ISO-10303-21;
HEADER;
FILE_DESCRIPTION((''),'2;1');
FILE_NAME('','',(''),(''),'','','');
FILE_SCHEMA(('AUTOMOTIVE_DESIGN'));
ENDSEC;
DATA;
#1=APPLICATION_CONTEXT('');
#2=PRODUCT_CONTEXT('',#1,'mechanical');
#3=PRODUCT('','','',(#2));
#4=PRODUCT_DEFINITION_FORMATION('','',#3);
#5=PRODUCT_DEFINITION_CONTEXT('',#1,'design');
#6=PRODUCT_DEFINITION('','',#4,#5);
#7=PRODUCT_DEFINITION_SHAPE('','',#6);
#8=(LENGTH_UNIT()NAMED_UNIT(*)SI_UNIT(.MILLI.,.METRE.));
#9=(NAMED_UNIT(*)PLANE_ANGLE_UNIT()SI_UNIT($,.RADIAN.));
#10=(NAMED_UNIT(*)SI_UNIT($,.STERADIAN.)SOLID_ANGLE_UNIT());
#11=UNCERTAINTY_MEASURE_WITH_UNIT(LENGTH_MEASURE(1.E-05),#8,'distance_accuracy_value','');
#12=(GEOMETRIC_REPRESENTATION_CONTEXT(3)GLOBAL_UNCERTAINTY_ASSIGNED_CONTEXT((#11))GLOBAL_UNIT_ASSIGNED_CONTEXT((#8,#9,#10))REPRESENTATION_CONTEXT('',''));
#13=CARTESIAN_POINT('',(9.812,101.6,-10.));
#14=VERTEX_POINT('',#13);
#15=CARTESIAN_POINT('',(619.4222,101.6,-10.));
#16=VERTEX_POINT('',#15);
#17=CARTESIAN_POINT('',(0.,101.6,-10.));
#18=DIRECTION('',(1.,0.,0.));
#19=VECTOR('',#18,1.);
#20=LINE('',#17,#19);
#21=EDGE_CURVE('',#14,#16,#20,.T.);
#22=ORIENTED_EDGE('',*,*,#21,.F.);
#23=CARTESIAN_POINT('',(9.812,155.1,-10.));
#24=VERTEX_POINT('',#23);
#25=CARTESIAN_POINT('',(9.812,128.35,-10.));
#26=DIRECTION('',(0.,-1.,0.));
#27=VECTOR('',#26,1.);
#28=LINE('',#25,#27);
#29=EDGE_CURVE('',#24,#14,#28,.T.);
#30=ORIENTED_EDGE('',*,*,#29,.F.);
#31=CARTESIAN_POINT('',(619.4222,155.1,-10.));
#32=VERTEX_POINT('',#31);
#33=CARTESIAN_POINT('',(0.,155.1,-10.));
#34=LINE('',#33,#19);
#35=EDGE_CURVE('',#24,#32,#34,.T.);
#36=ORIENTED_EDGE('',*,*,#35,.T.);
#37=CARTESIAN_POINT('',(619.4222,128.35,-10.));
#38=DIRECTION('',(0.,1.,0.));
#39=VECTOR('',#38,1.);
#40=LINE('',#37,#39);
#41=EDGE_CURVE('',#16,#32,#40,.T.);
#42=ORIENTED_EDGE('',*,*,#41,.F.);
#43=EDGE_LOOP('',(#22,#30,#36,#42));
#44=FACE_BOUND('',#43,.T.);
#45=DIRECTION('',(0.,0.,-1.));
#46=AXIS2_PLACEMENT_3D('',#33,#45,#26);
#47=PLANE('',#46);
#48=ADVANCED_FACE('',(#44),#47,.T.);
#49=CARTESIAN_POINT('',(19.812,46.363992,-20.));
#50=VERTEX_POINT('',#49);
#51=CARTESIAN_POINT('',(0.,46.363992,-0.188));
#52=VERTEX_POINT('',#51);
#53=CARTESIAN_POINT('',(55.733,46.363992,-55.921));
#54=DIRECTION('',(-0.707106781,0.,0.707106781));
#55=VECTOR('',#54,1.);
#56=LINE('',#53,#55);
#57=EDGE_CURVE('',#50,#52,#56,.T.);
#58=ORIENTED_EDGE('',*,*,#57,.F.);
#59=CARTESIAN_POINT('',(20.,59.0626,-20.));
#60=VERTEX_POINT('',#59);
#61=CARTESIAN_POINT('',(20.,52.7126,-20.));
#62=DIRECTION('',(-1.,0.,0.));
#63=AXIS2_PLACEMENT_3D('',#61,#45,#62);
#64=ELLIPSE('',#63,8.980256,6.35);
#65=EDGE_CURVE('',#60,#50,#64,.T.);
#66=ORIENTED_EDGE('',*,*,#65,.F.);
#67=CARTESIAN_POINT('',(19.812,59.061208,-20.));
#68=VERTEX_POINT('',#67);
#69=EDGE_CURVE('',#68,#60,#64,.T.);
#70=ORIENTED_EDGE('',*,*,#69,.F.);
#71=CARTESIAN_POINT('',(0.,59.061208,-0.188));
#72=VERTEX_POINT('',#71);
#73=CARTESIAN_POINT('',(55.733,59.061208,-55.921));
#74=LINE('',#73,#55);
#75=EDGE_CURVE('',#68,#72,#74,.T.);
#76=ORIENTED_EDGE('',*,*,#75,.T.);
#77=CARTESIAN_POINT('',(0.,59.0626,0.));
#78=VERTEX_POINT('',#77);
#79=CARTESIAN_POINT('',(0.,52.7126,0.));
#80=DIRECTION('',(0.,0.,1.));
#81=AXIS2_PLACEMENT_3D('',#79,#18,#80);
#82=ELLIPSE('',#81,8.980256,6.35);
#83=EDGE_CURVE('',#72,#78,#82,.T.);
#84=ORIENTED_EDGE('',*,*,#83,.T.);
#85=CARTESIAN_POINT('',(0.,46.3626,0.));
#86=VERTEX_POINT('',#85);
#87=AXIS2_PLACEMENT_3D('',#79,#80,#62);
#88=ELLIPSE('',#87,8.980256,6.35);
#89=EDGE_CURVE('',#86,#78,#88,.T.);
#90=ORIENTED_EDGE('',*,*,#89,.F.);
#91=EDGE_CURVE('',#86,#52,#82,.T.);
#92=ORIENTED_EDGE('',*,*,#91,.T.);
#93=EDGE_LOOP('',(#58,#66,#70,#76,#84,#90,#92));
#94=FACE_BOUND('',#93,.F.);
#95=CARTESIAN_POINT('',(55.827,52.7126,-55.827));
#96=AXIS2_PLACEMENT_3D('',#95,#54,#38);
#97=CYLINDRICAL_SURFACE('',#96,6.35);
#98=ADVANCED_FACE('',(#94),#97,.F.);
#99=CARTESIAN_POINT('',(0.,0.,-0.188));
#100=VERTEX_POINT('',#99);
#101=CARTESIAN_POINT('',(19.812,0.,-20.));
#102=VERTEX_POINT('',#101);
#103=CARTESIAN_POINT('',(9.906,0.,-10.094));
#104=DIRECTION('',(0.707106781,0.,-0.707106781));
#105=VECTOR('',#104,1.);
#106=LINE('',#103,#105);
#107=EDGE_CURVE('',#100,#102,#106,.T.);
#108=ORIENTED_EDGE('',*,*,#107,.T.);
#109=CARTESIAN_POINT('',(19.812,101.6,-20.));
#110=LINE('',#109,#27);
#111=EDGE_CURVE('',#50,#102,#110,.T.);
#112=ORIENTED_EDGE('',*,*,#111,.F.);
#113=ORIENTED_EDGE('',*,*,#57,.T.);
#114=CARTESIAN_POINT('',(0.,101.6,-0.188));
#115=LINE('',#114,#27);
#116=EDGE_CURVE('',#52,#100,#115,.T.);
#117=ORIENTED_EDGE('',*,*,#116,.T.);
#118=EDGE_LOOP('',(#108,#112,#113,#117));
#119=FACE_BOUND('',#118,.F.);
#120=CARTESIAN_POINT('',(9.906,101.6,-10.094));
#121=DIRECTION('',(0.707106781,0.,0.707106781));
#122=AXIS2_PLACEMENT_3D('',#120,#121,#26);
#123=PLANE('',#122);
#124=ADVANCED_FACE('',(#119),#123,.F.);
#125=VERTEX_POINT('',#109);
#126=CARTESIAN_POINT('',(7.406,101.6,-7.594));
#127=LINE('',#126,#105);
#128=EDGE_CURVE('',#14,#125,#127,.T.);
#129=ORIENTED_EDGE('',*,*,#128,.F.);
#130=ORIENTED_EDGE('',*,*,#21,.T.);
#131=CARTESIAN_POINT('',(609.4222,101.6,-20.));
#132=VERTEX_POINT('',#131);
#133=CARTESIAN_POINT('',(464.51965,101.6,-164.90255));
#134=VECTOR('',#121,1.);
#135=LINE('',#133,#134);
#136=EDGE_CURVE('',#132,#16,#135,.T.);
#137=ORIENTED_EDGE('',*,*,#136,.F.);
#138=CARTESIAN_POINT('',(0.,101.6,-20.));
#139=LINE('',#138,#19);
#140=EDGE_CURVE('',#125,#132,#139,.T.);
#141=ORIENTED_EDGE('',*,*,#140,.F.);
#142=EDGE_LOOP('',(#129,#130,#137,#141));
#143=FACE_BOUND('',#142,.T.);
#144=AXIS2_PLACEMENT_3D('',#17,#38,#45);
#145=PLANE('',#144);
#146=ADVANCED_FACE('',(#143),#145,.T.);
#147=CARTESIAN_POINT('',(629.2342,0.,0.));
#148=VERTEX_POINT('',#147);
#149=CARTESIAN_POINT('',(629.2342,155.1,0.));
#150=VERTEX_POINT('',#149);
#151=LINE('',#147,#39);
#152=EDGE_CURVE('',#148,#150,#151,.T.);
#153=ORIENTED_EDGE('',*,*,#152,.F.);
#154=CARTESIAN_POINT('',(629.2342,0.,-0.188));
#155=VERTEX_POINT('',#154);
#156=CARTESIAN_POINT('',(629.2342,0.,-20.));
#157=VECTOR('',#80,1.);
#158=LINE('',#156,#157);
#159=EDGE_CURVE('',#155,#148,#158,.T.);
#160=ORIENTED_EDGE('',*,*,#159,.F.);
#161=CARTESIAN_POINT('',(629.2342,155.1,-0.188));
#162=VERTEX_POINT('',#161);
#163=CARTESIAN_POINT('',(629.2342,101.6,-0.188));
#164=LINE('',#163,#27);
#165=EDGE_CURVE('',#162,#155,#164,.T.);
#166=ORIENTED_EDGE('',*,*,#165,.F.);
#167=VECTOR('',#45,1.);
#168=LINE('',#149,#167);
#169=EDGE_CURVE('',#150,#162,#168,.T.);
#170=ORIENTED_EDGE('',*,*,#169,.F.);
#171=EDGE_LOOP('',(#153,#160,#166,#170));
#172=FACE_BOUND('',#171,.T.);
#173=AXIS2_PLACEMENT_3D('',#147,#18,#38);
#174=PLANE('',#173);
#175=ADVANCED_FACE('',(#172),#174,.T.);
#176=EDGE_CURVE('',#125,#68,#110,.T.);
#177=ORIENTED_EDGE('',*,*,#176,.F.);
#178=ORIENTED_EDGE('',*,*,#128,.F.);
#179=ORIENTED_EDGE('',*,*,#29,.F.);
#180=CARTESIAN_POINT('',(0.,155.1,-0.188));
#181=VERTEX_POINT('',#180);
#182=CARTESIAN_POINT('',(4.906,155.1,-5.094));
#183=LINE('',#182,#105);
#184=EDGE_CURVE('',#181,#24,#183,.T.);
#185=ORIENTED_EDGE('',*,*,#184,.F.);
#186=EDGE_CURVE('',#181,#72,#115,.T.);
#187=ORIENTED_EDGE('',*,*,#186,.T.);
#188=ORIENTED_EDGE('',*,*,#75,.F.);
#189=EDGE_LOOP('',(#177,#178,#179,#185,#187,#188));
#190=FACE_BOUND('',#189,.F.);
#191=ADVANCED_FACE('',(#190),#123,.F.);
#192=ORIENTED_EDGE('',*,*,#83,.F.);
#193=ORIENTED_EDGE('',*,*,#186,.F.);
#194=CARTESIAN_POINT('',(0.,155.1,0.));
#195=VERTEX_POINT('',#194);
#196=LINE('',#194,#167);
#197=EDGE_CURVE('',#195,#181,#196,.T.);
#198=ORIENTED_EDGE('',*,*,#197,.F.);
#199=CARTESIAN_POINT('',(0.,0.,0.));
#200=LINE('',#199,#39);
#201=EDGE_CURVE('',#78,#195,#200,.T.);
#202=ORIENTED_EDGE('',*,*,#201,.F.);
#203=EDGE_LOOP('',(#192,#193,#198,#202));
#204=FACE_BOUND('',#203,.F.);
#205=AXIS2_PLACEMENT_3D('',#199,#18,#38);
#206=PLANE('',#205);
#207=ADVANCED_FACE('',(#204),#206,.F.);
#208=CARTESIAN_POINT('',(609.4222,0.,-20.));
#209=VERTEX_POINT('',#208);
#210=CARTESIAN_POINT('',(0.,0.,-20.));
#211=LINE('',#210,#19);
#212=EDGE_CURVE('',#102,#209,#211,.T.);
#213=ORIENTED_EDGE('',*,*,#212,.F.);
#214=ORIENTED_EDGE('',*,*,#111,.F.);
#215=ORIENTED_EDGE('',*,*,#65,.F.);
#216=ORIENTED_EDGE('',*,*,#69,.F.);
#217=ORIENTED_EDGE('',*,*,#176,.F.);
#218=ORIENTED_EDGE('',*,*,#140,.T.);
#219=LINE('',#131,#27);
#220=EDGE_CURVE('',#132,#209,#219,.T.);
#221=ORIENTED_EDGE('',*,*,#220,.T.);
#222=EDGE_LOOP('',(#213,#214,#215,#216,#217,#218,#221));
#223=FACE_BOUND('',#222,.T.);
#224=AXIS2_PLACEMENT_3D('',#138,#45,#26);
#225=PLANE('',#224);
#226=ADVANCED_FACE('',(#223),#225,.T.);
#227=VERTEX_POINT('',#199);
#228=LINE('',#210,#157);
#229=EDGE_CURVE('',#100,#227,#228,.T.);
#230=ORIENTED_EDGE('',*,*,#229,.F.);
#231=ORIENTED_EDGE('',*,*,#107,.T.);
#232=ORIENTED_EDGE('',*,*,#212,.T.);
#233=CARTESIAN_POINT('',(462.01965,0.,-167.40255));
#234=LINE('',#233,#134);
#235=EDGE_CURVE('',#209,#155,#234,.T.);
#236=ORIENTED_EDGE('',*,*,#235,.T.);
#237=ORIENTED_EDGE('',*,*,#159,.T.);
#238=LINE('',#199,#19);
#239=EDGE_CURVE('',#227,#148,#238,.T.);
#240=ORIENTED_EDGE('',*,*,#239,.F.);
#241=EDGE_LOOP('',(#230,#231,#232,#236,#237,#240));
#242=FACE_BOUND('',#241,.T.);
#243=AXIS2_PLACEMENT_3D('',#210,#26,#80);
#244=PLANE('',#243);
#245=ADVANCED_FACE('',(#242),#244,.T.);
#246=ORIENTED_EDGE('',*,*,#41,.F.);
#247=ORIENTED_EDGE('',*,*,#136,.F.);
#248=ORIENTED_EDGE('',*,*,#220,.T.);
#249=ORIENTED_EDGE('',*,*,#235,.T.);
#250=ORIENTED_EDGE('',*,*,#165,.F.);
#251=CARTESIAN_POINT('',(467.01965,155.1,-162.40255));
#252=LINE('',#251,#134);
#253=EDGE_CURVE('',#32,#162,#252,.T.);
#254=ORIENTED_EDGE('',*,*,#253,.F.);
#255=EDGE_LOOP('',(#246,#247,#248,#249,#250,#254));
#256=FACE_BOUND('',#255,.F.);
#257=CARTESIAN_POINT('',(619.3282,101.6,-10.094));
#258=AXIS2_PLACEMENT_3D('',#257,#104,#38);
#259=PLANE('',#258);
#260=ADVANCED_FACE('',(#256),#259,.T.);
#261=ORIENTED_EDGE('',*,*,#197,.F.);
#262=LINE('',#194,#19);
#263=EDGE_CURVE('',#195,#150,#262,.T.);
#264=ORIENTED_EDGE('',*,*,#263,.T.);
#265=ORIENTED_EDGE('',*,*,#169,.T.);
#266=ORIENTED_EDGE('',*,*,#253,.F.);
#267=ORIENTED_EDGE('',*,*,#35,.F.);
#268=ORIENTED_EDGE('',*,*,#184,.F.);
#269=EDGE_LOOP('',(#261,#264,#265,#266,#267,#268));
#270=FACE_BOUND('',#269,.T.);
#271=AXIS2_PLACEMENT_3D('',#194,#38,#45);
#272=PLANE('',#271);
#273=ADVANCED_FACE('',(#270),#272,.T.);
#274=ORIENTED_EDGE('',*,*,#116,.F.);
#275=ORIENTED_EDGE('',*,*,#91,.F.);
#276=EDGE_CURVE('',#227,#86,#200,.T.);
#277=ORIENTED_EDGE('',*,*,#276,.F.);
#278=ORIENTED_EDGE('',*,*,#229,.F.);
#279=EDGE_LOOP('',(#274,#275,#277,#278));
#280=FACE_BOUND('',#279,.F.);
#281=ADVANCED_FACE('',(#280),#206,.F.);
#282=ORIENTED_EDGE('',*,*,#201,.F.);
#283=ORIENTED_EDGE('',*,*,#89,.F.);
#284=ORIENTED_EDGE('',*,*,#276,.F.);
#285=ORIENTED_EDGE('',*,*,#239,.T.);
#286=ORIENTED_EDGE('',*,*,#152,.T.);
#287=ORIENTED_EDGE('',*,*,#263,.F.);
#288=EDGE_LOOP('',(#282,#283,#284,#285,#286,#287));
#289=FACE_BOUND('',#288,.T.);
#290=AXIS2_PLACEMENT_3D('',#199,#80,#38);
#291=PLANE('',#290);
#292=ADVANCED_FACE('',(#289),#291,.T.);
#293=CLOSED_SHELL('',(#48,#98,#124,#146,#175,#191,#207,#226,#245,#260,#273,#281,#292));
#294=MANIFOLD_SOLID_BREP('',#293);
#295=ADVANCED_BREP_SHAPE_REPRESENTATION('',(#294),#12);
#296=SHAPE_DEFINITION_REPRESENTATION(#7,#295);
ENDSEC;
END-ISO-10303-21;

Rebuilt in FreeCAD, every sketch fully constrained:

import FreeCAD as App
import Part
import Sketcher

V = App.Vector
Q = App.Units.Quantity


def edges_at(feature, points):
    """Names of the edges that pass closest to the given points."""
    edges = feature.Shape.Edges
    near = lambda p: min(range(len(edges)), key=lambda i: edges[i].distToShape(Part.Vertex(*p))[0])
    return sorted({f"Edge{near(p) + 1}" for p in points})

doc = App.newDocument("Part")
body = doc.addObject("PartDesign::Body", "Body")

sketch1 = body.newObject("Sketcher::SketchObject", "Sketch")
sketch1.AttachmentSupport = (doc.getObject("YZ_Plane"), [""])
sketch1.MapMode = "FlatFace"
sketch1.addGeometry([
    Part.LineSegment(V(155, 0, 0), V(0, 0, 0)),
    Part.LineSegment(V(0, 0, 0), V(0, -20, 0)),
    Part.LineSegment(V(0, -20, 0), V(102, -20, 0)),
    Part.LineSegment(V(102, -20, 0), V(102, -10, 0)),
    Part.LineSegment(V(102, -10, 0), V(155, -10, 0)),
    Part.LineSegment(V(155, -10, 0), V(155, 0, 0)),
], False)
sketch1.addConstraint([
    Sketcher.Constraint("Coincident", 0, 2, 1, 1),
    Sketcher.Constraint("Coincident", 1, 2, 2, 1),
    Sketcher.Constraint("Coincident", 2, 2, 3, 1),
    Sketcher.Constraint("Coincident", 3, 2, 4, 1),
    Sketcher.Constraint("Coincident", 4, 2, 5, 1),
    Sketcher.Constraint("Coincident", 5, 2, 0, 1),
    Sketcher.Constraint("Horizontal", 0),
    Sketcher.Constraint("Vertical", 1),
    Sketcher.Constraint("Horizontal", 2),
    Sketcher.Constraint("Vertical", 3),
    Sketcher.Constraint("Horizontal", 4),
    Sketcher.Constraint("Vertical", 5),
    Sketcher.Constraint("Coincident", 0, 2, -1, 1),
    Sketcher.Constraint("Equal", 3, 5),
    Sketcher.Constraint("DistanceX", 2, 1, 2, 2, Q("4 in")),
    Sketcher.Constraint("DistanceX", 0, 2, 0, 1, Q("6.1063 in")),
    Sketcher.Constraint("DistanceY", 1, 2, 1, 1, Q("0.7874 in")),
])
pad1 = body.newObject("PartDesign::Pad", "Pad")
pad1.Profile = sketch1
pad1.Length = Q("24.773 in")
doc.recompute()

chamfer = body.newObject("PartDesign::Chamfer", "Chamfer")
chamfer.Base = (pad1, edges_at(pad1, [(629.234, 50.8, -20)]))
chamfer.Size = Q("0.78 in")
doc.recompute()

chamfer2 = body.newObject("PartDesign::Chamfer", "Chamfer001")
chamfer2.Base = (chamfer, edges_at(chamfer, [(0, 50.8, -20)]))
chamfer2.Size = Q("0.78 in")

sketch2 = body.newObject("Sketcher::SketchObject", "Sketch001")
sketch2.Placement = App.Placement(V(55.827, 0, -55.827), App.Rotation(V(-0.707106781, 0, -0.707106781), V(0, 0.999999999, 0), V(0.707106781, 0, -0.707106781), "ZXY"))
sketch2.addGeometry(Part.Circle(V(0, 53, 0), V(0, 0, 1), 6), False)
sketch2.addConstraint([
    Sketcher.Constraint("PointOnObject", 0, 3, -2),
    Sketcher.Constraint("Diameter", 0, Q("0.5 in")),
    Sketcher.Constraint("DistanceY", -1, 1, 0, 3, Q("2.0753 in")),
])
doc.recompute()
hole = body.newObject("PartDesign::Hole", "Hole")
hole.Profile = sketch2
hole.ThreadType = "None"
hole.Diameter = Q("0.5 in")
hole.DepthType = "Dimension"
hole.Depth = Q("5 in")
hole.DrillPoint = "Angled"
hole.DrillPointAngle = 118

doc.recompute()
